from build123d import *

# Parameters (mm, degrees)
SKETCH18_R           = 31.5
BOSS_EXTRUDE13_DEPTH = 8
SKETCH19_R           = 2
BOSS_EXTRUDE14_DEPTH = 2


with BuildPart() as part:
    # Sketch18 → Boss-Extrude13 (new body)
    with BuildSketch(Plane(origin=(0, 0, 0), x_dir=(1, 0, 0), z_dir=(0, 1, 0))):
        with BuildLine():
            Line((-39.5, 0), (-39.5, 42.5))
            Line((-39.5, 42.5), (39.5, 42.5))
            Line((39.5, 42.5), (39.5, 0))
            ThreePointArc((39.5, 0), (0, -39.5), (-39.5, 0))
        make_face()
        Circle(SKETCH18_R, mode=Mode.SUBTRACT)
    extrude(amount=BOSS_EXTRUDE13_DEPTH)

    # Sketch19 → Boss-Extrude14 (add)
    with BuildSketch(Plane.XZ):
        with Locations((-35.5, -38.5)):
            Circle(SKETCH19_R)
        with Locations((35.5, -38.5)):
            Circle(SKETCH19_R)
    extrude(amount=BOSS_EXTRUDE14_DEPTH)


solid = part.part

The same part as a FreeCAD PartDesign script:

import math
import FreeCAD as App
import Part
import Sketcher

V = App.Vector
Q = App.Units.Quantity

doc = App.newDocument("Part")
body = doc.addObject("PartDesign::Body", "Body")

# Sketch on XZ plane
sketch1 = doc.addObject("Sketcher::SketchObject", "Sketch")
body.addObject(sketch1)
sketch1.AttachmentSupport = (doc.XZ_Plane, [""])
sketch1.MapMode = "FlatFace"
sketch1.addGeometry([
    Part.LineSegment(V(-40, -42, 0), V(-40, 0, 0)),  # 0
    Part.ArcOfCircle(Part.Circle(V(0, 0, 0), V(0, 0, 1), 40), math.radians(0), math.radians(180)),  # 1
    Part.LineSegment(V(40, 0, 0), V(40, -42, 0)),  # 2
    Part.LineSegment(V(40, -42, 0), V(-40, -42, 0)),  # 3
    Part.Circle(V(0, 0, 0), V(0, 0, 1), 32),  # 4
], False)
sketch1.addConstraint([
    Sketcher.Constraint("Tangent", 0, 2, 1, 2),
    Sketcher.Constraint("Tangent", 1, 1, 2, 1),
    Sketcher.Constraint("Coincident", 2, 2, 3, 1),
    Sketcher.Constraint("Coincident", 3, 2, 0, 1),
    Sketcher.Constraint("Vertical", 0),
    Sketcher.Constraint("Vertical", 2),
    Sketcher.Constraint("Horizontal", 3),
    Sketcher.Constraint("Coincident", 1, 3, -1, 1),
    Sketcher.Constraint("Coincident", 4, 3, -1, 1),
    Sketcher.Constraint("Diameter", 4, Q("63 mm")),
    Sketcher.Constraint("Radius", 1, Q("39.5 mm")),
    Sketcher.Constraint("DistanceY", 0, 1, 0, 2, Q("42.5 mm")),
])
pad1 = doc.addObject("PartDesign::Pad", "Pad")
body.addObject(pad1)
pad1.Profile = sketch1
pad1.Length = 8
pad1.Reversed = True

# Sketch on XZ plane
sketch2 = doc.addObject("Sketcher::SketchObject", "Sketch001")
body.addObject(sketch2)
sketch2.AttachmentSupport = (doc.XZ_Plane, [""])
sketch2.MapMode = "FlatFace"
sketch2.addGeometry([
    Part.Circle(V(-35.5, -38.5, 0), V(0, 0, 1), 2),
    Part.Circle(V(35.5, -38.5, 0), V(0, 0, 1), 2),
], False)
sketch2.addConstraint([
    Sketcher.Constraint("Equal", 0, 1),
    Sketcher.Constraint("Symmetric", 0, 3, 1, 3, -2),
    Sketcher.Constraint("Diameter", 0, Q("4 mm")),
    Sketcher.Constraint("DistanceX", 0, 3, 1, 3, Q("71 mm")),
    Sketcher.Constraint("DistanceY", 0, 3, -1, 1, Q("38.5 mm")),
])
pad2 = doc.addObject("PartDesign::Pad", "Pad001")
body.addObject(pad2)
pad2.Profile = sketch2
pad2.Length = 2

doc.recompute()
